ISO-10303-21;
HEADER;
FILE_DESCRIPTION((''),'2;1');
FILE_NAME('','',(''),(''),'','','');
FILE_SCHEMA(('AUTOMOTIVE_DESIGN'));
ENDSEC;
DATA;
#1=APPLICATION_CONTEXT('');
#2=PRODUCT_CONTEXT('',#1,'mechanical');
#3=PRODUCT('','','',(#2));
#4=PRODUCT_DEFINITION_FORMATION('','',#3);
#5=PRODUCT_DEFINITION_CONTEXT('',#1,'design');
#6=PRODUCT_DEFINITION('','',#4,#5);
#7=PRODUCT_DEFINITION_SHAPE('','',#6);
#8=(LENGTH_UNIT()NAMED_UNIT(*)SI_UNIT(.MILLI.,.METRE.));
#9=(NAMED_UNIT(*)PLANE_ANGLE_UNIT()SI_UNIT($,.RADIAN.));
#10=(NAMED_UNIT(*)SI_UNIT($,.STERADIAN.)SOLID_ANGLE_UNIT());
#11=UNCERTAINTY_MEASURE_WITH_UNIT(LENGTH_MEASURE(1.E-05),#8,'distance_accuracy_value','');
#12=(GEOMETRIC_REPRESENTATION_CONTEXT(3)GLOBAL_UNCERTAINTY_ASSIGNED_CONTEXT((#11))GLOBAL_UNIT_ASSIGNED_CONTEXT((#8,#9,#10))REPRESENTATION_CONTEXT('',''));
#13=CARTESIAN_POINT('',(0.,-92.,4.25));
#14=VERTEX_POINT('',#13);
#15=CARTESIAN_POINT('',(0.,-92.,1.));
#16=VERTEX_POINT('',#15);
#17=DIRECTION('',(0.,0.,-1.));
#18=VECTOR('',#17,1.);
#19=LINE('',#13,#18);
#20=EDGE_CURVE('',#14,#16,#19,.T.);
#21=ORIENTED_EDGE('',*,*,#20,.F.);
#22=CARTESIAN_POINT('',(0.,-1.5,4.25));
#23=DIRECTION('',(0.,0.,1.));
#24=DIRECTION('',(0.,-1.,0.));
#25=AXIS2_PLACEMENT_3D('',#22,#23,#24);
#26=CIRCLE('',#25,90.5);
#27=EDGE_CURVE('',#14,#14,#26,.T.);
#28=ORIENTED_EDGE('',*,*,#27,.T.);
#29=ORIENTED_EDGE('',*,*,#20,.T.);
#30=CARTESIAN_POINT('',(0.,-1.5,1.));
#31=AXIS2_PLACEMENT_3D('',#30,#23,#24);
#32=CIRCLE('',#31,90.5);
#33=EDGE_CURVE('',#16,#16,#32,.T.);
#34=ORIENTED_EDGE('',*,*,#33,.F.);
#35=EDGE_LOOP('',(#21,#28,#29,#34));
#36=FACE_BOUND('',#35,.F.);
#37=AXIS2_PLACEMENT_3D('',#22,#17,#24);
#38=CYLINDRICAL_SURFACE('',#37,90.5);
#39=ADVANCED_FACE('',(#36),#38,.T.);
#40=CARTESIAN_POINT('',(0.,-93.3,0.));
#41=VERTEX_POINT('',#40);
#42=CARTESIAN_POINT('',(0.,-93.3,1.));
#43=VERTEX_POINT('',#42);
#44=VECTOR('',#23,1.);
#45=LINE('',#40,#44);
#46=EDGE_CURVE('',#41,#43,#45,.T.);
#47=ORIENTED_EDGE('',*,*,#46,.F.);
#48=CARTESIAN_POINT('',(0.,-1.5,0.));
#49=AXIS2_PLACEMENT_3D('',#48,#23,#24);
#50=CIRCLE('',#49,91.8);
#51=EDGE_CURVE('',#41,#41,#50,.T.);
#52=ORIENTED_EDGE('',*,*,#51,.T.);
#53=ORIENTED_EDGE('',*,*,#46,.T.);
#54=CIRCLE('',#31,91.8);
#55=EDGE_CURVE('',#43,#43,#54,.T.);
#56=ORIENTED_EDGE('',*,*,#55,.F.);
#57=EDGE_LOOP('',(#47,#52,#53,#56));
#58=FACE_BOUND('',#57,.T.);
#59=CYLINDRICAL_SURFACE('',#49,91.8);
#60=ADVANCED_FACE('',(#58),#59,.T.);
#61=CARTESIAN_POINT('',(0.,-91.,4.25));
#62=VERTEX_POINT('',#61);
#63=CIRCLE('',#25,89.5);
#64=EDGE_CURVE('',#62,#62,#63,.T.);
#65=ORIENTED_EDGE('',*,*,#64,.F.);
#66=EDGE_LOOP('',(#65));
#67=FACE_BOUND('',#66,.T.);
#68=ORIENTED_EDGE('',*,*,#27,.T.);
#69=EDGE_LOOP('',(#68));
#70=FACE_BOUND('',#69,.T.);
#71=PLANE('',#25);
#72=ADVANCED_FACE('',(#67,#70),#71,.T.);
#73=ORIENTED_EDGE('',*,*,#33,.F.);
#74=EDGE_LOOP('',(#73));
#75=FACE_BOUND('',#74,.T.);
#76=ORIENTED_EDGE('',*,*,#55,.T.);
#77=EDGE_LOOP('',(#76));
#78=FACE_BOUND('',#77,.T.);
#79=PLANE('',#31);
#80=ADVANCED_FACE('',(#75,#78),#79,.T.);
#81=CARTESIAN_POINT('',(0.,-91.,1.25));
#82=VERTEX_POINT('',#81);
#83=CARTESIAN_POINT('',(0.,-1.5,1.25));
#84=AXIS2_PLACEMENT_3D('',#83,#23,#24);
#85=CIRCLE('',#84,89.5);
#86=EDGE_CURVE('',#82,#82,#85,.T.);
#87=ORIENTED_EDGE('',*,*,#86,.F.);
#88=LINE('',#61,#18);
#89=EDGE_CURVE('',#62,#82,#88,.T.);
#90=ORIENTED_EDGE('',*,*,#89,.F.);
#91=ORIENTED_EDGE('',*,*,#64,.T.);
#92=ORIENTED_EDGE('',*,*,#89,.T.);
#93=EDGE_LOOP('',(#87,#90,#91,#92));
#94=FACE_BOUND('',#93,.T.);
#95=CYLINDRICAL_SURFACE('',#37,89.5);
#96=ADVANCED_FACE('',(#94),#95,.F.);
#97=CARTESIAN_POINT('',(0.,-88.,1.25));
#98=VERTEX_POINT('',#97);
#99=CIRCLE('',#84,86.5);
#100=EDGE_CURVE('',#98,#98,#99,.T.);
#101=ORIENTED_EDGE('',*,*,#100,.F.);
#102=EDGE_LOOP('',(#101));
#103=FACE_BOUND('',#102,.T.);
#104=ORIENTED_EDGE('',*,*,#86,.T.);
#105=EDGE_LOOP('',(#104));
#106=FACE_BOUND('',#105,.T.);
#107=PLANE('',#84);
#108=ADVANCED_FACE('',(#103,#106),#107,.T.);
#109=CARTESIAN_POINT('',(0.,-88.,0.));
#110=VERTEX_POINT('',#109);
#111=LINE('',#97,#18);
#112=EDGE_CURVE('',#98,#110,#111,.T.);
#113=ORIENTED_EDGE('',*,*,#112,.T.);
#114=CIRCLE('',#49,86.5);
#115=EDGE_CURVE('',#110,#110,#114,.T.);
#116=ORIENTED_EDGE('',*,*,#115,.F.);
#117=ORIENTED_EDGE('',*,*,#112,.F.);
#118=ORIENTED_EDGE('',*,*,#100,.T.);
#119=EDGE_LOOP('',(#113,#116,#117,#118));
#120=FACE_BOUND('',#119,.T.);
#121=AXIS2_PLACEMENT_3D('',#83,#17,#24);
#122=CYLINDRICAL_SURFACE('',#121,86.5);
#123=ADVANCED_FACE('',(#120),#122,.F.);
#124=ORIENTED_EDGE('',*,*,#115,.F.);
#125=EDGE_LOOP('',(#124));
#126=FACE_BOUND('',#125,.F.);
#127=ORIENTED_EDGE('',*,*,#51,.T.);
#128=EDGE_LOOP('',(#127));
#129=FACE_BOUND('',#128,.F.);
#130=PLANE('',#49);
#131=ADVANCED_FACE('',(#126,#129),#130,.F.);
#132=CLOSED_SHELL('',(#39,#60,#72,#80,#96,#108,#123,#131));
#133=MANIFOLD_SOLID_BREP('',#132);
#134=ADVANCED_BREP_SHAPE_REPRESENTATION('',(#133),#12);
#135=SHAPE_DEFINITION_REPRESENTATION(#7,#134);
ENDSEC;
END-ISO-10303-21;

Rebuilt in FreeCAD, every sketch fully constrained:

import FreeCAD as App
import Part
import Sketcher
Q = App.Units.Quantity

doc = App.newDocument("Part")
body = doc.addObject("PartDesign::Body", "Body")

# Sketch on YZ plane
sketch1 = body.newObject("Sketcher::SketchObject", "Sketch")
sketch1.AttachmentSupport = (doc.getObject("YZ_Plane"), [""])
sketch1.MapMode = "FlatFace"
sketch1.addGeometry(Part.LineSegment(App.Vector(-93.3, 1, 0), App.Vector(-93.3, 0, 0)), False)
sketch1.addGeometry(Part.LineSegment(App.Vector(-93.3, 0, 0), App.Vector(-88, 0, 0)), False)
sketch1.addGeometry(Part.LineSegment(App.Vector(-88, 0, 0), App.Vector(-88, 1.25, 0)), False)
sketch1.addGeometry(Part.LineSegment(App.Vector(-88, 1.25, 0), App.Vector(-91, 1.25, 0)), False)
sketch1.addGeometry(Part.LineSegment(App.Vector(-91, 1.25, 0), App.Vector(-91, 4.25, 0)), False)
sketch1.addGeometry(Part.LineSegment(App.Vector(-91, 4.25, 0), App.Vector(-92, 4.25, 0)), False)
sketch1.addGeometry(Part.LineSegment(App.Vector(-92, 4.25, 0), App.Vector(-92, 1, 0)), False)
sketch1.addGeometry(Part.LineSegment(App.Vector(-92, 1, 0), App.Vector(-93.3, 1, 0)), False)
sketch1.addGeometry(Part.LineSegment(App.Vector(-1.5, 0, 0), App.Vector(-1.5, 4.25, 0)), True)  # axis
sketch1.addConstraint(Sketcher.Constraint("Coincident", 0, 2, 1, 1))
sketch1.addConstraint(Sketcher.Constraint("Coincident", 1, 2, 2, 1))
sketch1.addConstraint(Sketcher.Constraint("Coincident", 2, 2, 3, 1))
sketch1.addConstraint(Sketcher.Constraint("Coincident", 3, 2, 4, 1))
sketch1.addConstraint(Sketcher.Constraint("Coincident", 4, 2, 5, 1))
sketch1.addConstraint(Sketcher.Constraint("Coincident", 5, 2, 6, 1))
sketch1.addConstraint(Sketcher.Constraint("Coincident", 6, 2, 7, 1))
sketch1.addConstraint(Sketcher.Constraint("Coincident", 7, 2, 0, 1))
sketch1.addConstraint(Sketcher.Constraint("Vertical", 0))
sketch1.addConstraint(Sketcher.Constraint("Horizontal", 1))
sketch1.addConstraint(Sketcher.Constraint("Vertical", 2))
sketch1.addConstraint(Sketcher.Constraint("Horizontal", 3))
sketch1.addConstraint(Sketcher.Constraint("Vertical", 4))
sketch1.addConstraint(Sketcher.Constraint("Horizontal", 5))
sketch1.addConstraint(Sketcher.Constraint("Vertical", 6))
sketch1.addConstraint(Sketcher.Constraint("Horizontal", 7))
sketch1.addConstraint(Sketcher.Constraint("Vertical", 8))
sketch1.addConstraint(Sketcher.Constraint("PointOnObject", 0, 2, -1))
sketch1.addConstraint(Sketcher.Constraint("PointOnObject", 8, 1, -1))
sketch1.addConstraint(Sketcher.Constraint("Horizontal", 5, 2, 8, 2))
sketch1.addConstraint(Sketcher.Constraint("Equal", 5, 0))
sketch1.addConstraint(Sketcher.Constraint("Equal", 3, 4))
sketch1.addConstraint(Sketcher.Constraint("DistanceX", 3, 2, 3, 1, Q("3 mm")))
sketch1.addConstraint(Sketcher.Constraint("DistanceX", 5, 2, 5, 1, Q("1 mm")))
sketch1.addConstraint(Sketcher.Constraint("DistanceX", 7, 2, 7, 1, Q("1.3 mm")))
sketch1.addConstraint(Sketcher.Constraint("DistanceY", 6, 2, 6, 1, Q("3.25 mm")))
sketch1.addConstraint(Sketcher.Constraint("DistanceX", 1, 2, -1, 1, Q("88 mm")))
sketch1.addConstraint(Sketcher.Constraint("DistanceX", 8, 1, -1, 1, Q("1.5 mm")))
revolution = body.newObject("PartDesign::Revolution", "Revolution")
revolution.Profile = sketch1
revolution.ReferenceAxis = (sketch1, ["Axis0"])
revolution.Angle = 360

doc.recompute()
